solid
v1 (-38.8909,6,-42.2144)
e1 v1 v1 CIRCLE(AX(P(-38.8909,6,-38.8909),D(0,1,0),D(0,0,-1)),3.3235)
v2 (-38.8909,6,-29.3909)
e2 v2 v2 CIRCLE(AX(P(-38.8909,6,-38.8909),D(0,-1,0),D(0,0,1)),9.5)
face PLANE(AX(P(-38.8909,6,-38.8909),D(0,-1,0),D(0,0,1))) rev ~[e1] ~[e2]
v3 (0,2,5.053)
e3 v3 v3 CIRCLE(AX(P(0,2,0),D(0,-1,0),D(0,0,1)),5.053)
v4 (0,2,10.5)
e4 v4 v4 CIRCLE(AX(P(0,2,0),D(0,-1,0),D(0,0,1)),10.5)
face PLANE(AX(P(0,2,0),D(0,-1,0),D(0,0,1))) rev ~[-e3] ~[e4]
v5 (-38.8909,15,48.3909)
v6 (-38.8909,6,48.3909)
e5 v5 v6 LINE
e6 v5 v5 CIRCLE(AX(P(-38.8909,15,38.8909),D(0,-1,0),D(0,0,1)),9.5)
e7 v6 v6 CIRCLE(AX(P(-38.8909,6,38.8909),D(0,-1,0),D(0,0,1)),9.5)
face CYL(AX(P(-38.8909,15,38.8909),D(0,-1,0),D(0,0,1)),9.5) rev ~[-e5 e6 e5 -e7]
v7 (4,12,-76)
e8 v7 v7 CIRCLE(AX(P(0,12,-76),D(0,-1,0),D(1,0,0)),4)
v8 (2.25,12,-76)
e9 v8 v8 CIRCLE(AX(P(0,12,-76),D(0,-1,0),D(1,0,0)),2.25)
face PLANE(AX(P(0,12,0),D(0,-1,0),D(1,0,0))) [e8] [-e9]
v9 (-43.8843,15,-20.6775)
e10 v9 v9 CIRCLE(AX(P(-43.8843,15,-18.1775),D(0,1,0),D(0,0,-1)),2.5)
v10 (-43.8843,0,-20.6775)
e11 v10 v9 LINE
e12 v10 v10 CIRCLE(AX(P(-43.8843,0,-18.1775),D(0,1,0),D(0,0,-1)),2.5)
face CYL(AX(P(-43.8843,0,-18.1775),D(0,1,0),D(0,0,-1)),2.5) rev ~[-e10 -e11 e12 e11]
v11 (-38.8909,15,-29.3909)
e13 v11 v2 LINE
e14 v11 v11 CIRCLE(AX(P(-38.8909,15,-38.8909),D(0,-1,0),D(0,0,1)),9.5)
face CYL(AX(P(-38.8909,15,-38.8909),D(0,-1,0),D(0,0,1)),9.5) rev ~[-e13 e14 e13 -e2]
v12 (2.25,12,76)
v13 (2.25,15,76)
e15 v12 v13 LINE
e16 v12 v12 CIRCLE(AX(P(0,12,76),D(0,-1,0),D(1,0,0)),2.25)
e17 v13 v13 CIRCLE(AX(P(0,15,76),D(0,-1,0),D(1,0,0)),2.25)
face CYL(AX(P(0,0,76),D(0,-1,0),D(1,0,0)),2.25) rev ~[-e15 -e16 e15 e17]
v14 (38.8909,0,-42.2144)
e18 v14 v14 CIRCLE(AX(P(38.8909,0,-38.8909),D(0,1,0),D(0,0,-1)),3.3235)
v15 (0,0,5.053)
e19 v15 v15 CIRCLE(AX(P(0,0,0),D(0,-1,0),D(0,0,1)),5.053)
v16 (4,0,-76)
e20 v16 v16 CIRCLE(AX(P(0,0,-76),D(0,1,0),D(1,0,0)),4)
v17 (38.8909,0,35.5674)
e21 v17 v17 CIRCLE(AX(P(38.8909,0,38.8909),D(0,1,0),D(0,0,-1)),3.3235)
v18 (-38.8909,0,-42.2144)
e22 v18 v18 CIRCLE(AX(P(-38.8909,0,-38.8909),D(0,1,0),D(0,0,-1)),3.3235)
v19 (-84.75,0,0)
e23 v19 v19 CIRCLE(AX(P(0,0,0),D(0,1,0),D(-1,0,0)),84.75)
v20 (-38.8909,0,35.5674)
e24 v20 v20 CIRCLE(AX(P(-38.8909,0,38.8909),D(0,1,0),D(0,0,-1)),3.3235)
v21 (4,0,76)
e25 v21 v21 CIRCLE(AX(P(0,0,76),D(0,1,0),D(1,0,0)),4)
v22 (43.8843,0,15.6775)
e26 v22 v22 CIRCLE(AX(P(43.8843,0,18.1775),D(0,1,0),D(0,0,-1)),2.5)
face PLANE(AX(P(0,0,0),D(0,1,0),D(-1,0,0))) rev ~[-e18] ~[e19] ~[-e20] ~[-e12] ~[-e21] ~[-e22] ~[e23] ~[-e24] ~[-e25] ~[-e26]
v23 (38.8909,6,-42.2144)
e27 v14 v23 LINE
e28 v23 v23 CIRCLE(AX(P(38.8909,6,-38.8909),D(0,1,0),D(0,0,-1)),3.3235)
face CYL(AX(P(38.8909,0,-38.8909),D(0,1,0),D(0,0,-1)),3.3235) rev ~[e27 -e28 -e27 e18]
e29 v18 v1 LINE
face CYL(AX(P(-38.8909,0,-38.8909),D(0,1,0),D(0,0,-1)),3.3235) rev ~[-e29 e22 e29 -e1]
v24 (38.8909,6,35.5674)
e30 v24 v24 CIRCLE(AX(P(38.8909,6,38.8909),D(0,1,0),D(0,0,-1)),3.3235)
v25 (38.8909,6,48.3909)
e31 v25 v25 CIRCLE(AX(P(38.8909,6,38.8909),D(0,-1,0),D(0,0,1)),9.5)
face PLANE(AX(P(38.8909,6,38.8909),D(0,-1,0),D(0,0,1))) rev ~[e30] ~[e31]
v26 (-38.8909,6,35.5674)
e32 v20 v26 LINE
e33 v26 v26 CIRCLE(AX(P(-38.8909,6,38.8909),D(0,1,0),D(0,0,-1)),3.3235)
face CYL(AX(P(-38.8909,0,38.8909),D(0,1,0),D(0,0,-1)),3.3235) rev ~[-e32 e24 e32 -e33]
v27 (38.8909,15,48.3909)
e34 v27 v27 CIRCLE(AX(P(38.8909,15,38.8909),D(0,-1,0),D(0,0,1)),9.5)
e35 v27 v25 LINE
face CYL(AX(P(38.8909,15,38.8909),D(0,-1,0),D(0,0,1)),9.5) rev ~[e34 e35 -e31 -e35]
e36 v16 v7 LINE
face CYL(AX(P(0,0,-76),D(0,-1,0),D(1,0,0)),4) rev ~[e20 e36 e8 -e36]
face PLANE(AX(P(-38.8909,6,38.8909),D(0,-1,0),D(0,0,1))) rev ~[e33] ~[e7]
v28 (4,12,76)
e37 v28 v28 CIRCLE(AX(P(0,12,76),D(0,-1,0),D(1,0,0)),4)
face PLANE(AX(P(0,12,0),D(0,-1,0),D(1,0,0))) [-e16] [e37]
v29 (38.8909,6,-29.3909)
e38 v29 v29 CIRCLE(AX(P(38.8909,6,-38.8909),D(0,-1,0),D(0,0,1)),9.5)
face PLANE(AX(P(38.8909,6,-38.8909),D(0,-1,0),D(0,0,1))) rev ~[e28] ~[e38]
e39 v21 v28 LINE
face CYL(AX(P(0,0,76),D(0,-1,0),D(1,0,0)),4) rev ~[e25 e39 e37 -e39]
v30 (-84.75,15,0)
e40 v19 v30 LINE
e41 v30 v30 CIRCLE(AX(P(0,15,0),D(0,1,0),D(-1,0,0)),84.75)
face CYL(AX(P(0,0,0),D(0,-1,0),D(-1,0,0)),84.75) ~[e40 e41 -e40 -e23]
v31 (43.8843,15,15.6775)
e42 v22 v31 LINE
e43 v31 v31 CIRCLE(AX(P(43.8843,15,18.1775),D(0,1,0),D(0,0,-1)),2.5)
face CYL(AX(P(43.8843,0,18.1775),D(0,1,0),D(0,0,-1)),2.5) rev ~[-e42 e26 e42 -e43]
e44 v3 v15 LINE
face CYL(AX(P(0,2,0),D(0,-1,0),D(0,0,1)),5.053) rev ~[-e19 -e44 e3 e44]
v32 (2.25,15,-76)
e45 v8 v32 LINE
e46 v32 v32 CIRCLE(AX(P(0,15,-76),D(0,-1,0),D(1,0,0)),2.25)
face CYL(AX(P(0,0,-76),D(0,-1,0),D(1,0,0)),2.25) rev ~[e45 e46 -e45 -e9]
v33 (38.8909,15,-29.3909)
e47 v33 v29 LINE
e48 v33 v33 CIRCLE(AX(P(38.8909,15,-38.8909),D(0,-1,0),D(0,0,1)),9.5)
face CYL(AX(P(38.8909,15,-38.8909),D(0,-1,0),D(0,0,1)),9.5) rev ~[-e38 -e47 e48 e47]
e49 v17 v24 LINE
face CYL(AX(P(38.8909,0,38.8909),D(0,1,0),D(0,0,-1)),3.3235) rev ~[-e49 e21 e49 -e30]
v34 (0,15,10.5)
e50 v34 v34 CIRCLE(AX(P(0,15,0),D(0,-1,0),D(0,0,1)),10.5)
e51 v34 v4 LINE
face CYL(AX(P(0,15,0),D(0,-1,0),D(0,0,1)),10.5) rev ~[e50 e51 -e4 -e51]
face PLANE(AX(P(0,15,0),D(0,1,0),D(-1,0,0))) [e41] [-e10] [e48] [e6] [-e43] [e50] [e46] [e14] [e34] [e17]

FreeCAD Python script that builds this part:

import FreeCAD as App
import Part
import Sketcher
Q = App.Units.Quantity

doc = App.newDocument("Part")
body = doc.addObject("PartDesign::Body", "Body")

# Sketch on XZ plane
sketch1 = doc.addObject("Sketcher::SketchObject", "Sketch")
body.addObject(sketch1)
sketch1.AttachmentSupport = (doc.XZ_Plane, [""])
sketch1.MapMode = "FlatFace"
sketch1.addGeometry(Part.Circle(App.Vector(0, 0, 0), App.Vector(0, 0, 1), 85), False)
sketch1.addConstraint(Sketcher.Constraint("Coincident", 0, 3, -1, 1))
sketch1.addConstraint(Sketcher.Constraint("Diameter", 0, Q("169.5 mm")))
pad1 = doc.addObject("PartDesign::Pad", "Pad")
body.addObject(pad1)
pad1.Profile = sketch1
pad1.Length = 15
pad1.Reversed = True

# Sketch on XZ plane
sketch2 = doc.addObject("Sketcher::SketchObject", "Sketch001")
body.addObject(sketch2)
sketch2.AttachmentSupport = (doc.XZ_Plane, [""])
sketch2.MapMode = "FlatFace"
sketch2.addGeometry(Part.Circle(App.Vector(0, 76, 0), App.Vector(0, 0, 1), 2.2), False)
sketch2.addGeometry(Part.Circle(App.Vector(0, -76, 0), App.Vector(0, 0, 1), 2.2), False)
sketch2.addConstraint(Sketcher.Constraint("Equal", 0, 1))
sketch2.addConstraint(Sketcher.Constraint("Symmetric", 0, 3, 1, 3, -1, 1))
sketch2.addConstraint(Sketcher.Constraint("PointOnObject", 0, 3, -2))
sketch2.addConstraint(Sketcher.Constraint("Diameter", 0, Q("4.5 mm")))
sketch2.addConstraint(Sketcher.Constraint("DistanceY", 1, 3, 0, 3, Q("152 mm")))
pocket1 = doc.addObject("PartDesign::Pocket", "Pocket")
body.addObject(pocket1)
pocket1.Profile = sketch2
pocket1.Type = "ThroughAll"

# Sketch on XZ plane
sketch3 = doc.addObject("Sketcher::SketchObject", "Sketch002")
body.addObject(sketch3)
sketch3.AttachmentSupport = (doc.XZ_Plane, [""])
sketch3.MapMode = "FlatFace"
sketch3.addGeometry(Part.Circle(App.Vector(0, 76, 0), App.Vector(0, 0, 1), 4), False)
sketch3.addGeometry(Part.Circle(App.Vector(0, -76, 0), App.Vector(0, 0, 1), 4), False)
sketch3.addConstraint(Sketcher.Constraint("Equal", 0, 1))
sketch3.addConstraint(Sketcher.Constraint("Symmetric", 0, 3, 1, 3, -1, 1))
sketch3.addConstraint(Sketcher.Constraint("PointOnObject", 0, 3, -2))
sketch3.addConstraint(Sketcher.Constraint("Diameter", 0, Q("8 mm")))
sketch3.addConstraint(Sketcher.Constraint("DistanceY", 1, 3, 0, 3, Q("152 mm")))
pocket2 = doc.addObject("PartDesign::Pocket", "Pocket001")
body.addObject(pocket2)
pocket2.Profile = sketch3
pocket2.Length = 12

# Sketch on XZ plane
sketch4 = doc.addObject("Sketcher::SketchObject", "Sketch003")
body.addObject(sketch4)
sketch4.AttachmentSupport = (doc.XZ_Plane, [""])
sketch4.MapMode = "FlatFace"
sketch4.addGeometry(Part.Circle(App.Vector(38.9, -38.9, 0), App.Vector(0, 0, 1), 3.3), False)
sketch4.addGeometry(Part.Circle(App.Vector(38.9, 38.9, 0), App.Vector(0, 0, 1), 3.3), False)
sketch4.addGeometry(Part.Circle(App.Vector(-38.9, 38.9, 0), App.Vector(0, 0, 1), 3.3), False)
sketch4.addGeometry(Part.Circle(App.Vector(-38.9, -38.9, 0), App.Vector(0, 0, 1), 3.3), False)
sketch4.addConstraint(Sketcher.Constraint("Equal", 0, 1))
sketch4.addConstraint(Sketcher.Constraint("Equal", 1, 2))
sketch4.addConstraint(Sketcher.Constraint("Equal", 2, 3))
sketch4.addConstraint(Sketcher.Constraint("Symmetric", 0, 3, 2, 3, -1, 1))
sketch4.addConstraint(Sketcher.Constraint("Symmetric", 1, 3, 3, 3, -1, 1))
sketch4.addConstraint(Sketcher.Constraint("Symmetric", 1, 3, 2, 3, -2))
sketch4.addConstraint(Sketcher.Constraint("Diameter", 0, Q("6.647 mm")))
sketch4.addConstraint(Sketcher.Constraint("DistanceX", -1, 1, 0, 3, Q("38.891 mm")))
sketch4.addConstraint(Sketcher.Constraint("DistanceY", 0, 3, -1, 1, Q("38.891 mm")))
doc.recompute()
hole = doc.addObject("PartDesign::Hole", "Hole")
body.addObject(hole)
hole.Profile = sketch4
hole.ThreadType = "None"
hole.Diameter = 6.647
hole.DepthType = "Dimension"
hole.Depth = 20
hole.DrillPoint = "Angled"
hole.DrillPointAngle = 118

# Sketch on XZ plane
sketch5 = doc.addObject("Sketcher::SketchObject", "Sketch004")
body.addObject(sketch5)
sketch5.AttachmentSupport = (doc.XZ_Plane, [""])
sketch5.MapMode = "FlatFace"
sketch5.addGeometry(Part.Circle(App.Vector(43.9, 18.2, 0), App.Vector(0, 0, 1), 2.5), False)
sketch5.addGeometry(Part.Circle(App.Vector(-43.9, -18.2, 0), App.Vector(0, 0, 1), 2.5), False)
sketch5.addConstraint(Sketcher.Constraint("Equal", 0, 1))
sketch5.addConstraint(Sketcher.Constraint("Symmetric", 0, 3, 1, 3, -1, 1))
sketch5.addConstraint(Sketcher.Constraint("Diameter", 0, Q("5 mm")))
sketch5.addConstraint(Sketcher.Constraint("DistanceY", 1, 3, 0, 3, Q("36.355 mm")))
sketch5.addConstraint(Sketcher.Constraint("DistanceX", -1, 1, 0, 3, Q("43.8843 mm")))
doc.recompute()
hole2 = doc.addObject("PartDesign::Hole", "Hole001")
body.addObject(hole2)
hole2.Profile = sketch5
hole2.ThreadType = "None"
hole2.Diameter = 5
hole2.DepthType = "ThroughAll"

# Sketch on XZ plane
sketch6 = doc.addObject("Sketcher::SketchObject", "Sketch005")
body.addObject(sketch6)
sketch6.AttachmentSupport = (doc.XZ_Plane, [""])
sketch6.MapMode = "FlatFace"
sketch6.AttachmentOffset = App.Placement(App.Vector(0, 0, -15), App.Rotation())
sketch6.addGeometry(Part.Circle(App.Vector(0, 0, 0), App.Vector(0, 0, 1), 5), False)
sketch6.addConstraint(Sketcher.Constraint("Coincident", 0, 3, -1, 1))
sketch6.addConstraint(Sketcher.Constraint("Diameter", 0, Q("10.106 mm")))
doc.recompute()
hole3 = doc.addObject("PartDesign::Hole", "Hole002")
body.addObject(hole3)
hole3.Profile = sketch6
hole3.ThreadType = "None"
hole3.Diameter = 10.106
hole3.DepthType = "Dimension"
hole3.Depth = 32.3
hole3.DrillPoint = "Angled"
hole3.DrillPointAngle = 118
hole3.HoleCutType = "Counterbore"
hole3.HoleCutDiameter = 21
hole3.HoleCutDepth = 13
hole3.Reversed = True

# Sketch on XZ plane
sketch7 = doc.addObject("Sketcher::SketchObject", "Sketch006")
body.addObject(sketch7)
sketch7.AttachmentSupport = (doc.XZ_Plane, [""])
sketch7.MapMode = "FlatFace"
sketch7.AttachmentOffset = App.Placement(App.Vector(0, 0, -15), App.Rotation())
sketch7.addGeometry(Part.Circle(App.Vector(-38.9, 38.9, 0), App.Vector(0, 0, 1), 3.3), False)
sketch7.addGeometry(Part.Circle(App.Vector(-38.9, -38.9, 0), App.Vector(0, 0, 1), 3.3), False)
sketch7.addGeometry(Part.Circle(App.Vector(38.9, 38.9, 0), App.Vector(0, 0, 1), 3.3), False)
sketch7.addGeometry(Part.Circle(App.Vector(38.9, -38.9, 0), App.Vector(0, 0, 1), 3.3), False)
sketch7.addConstraint(Sketcher.Constraint("Equal", 0, 1))
sketch7.addConstraint(Sketcher.Constraint("Equal", 1, 2))
sketch7.addConstraint(Sketcher.Constraint("Equal", 2, 3))
sketch7.addConstraint(Sketcher.Constraint("Symmetric", 1, 3, 2, 3, -1, 1))
sketch7.addConstraint(Sketcher.Constraint("Symmetric", 0, 3, 3, 3, -1, 1))
sketch7.addConstraint(Sketcher.Constraint("Symmetric", 0, 3, 2, 3, -2))
sketch7.addConstraint(Sketcher.Constraint("Diameter", 0, Q("6.647 mm")))
sketch7.addConstraint(Sketcher.Constraint("DistanceX", 0, 3, -1, 1, Q("38.891 mm")))
sketch7.addConstraint(Sketcher.Constraint("DistanceY", -1, 1, 0, 3, Q("38.891 mm")))
doc.recompute()
hole4 = doc.addObject("PartDesign::Hole", "Hole003")
body.addObject(hole4)
hole4.Profile = sketch7
hole4.ThreadType = "None"
hole4.Diameter = 6.647
hole4.DepthType = "Dimension"
hole4.Depth = 20
hole4.DrillPoint = "Angled"
hole4.DrillPointAngle = 118
hole4.HoleCutType = "Counterbore"
hole4.HoleCutDiameter = 19
hole4.HoleCutDepth = 9
hole4.Reversed = True

doc.recompute()
